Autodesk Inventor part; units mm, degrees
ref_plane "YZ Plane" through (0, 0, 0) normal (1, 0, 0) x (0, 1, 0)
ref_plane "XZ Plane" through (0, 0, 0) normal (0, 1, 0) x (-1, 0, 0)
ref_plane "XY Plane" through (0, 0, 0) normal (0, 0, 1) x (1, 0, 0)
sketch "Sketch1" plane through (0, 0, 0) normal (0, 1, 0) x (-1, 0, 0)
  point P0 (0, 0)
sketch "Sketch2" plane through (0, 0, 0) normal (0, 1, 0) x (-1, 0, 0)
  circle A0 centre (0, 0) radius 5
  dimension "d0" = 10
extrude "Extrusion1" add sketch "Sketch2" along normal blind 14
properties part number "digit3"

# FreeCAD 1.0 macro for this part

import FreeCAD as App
import Part
import Sketcher
Q = App.Units.Quantity

doc = App.newDocument("Part")
body = doc.addObject("PartDesign::Body", "Body")

sketch1 = body.newObject("Sketcher::SketchObject", "Sketch")
sketch1.AttachmentSupport = (doc.getObject("XZ_Plane"), [""])
sketch1.MapMode = "FlatFace"
sketch1.addGeometry(Part.Circle(App.Vector(0, 0, 0), App.Vector(0, 0, 1), 5), False)
sketch1.addConstraint([
    Sketcher.Constraint("Coincident", 0, 3, -1, 1),
    Sketcher.Constraint("Diameter", 0, Q("10 mm")),
])
pad1 = body.newObject("PartDesign::Pad", "Pad")
pad1.Profile = sketch1
pad1.Length = 14
pad1.Reversed = True

doc.recompute()
